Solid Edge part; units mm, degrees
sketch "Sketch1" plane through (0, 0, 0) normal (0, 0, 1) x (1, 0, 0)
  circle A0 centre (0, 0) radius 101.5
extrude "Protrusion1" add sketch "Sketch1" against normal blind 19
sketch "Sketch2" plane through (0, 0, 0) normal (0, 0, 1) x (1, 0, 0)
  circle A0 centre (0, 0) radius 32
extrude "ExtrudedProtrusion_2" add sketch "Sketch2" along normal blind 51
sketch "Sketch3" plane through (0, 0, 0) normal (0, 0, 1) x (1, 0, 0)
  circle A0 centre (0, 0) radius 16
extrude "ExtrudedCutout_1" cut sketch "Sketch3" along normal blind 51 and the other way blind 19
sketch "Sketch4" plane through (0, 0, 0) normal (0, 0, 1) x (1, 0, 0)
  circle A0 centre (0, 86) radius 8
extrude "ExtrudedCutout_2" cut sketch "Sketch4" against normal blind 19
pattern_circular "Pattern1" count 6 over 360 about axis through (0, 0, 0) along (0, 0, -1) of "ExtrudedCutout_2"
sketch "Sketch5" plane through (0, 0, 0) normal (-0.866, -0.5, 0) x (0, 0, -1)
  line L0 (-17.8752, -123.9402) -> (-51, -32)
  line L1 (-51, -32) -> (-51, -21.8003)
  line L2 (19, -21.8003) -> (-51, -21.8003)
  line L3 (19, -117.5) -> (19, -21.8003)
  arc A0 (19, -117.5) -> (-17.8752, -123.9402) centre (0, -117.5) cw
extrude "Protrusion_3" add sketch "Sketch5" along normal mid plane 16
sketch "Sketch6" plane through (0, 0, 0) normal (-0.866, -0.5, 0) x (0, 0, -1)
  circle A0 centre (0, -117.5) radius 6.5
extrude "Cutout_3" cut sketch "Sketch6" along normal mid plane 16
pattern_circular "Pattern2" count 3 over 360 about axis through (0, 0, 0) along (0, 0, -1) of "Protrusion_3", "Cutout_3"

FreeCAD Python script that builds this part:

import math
import FreeCAD as App
import Part
import Sketcher

V = App.Vector
Q = App.Units.Quantity

doc = App.newDocument("Part")
params = doc.addObject("Spreadsheet::Sheet", "Params")
for row, (alias, value) in enumerate([
    ("sketch1_diameter", "203 mm"),
    ("pad1_length", "19 mm"),
    ("sketch2_diameter", "64 mm"),
    ("pad2_length", "51 mm"),
    ("sketch3_diameter", "32 mm"),
    ("sketch4_diameter", "16 mm"),
    ("pocket2_length", "19 mm"),
    ("sketch5_radius", "19 mm"),
    ("sketch5_width", "70 mm"),
    ("pad3_length", "16 mm"),
    ("sketch6_diameter", "13 mm"),
    ("pocket3_length", "16 mm"),
], start=1):
    params.set(f"A{row}", alias)
    params.set(f"B{row}", "=" + value)
    params.setAlias(f"B{row}", alias)

body = doc.addObject("PartDesign::Body", "Body")

sketch1 = doc.addObject("Sketcher::SketchObject", "Sketch")
body.addObject(sketch1)
sketch1.AttachmentSupport = (doc.XY_Plane, [""])
sketch1.MapMode = "FlatFace"
sketch1.addGeometry(Part.Circle(V(0, 0, 0), V(0, 0, 1), 102), False)
sketch1.addConstraint([
    Sketcher.Constraint("Coincident", 0, 3, -1, 1),
    Sketcher.Constraint("Diameter", 0, Q("203 mm")),
])
sketch1.setExpression("Constraints[1]", "Params.sketch1_diameter")
pad1 = doc.addObject("PartDesign::Pad", "Pad")
body.addObject(pad1)
pad1.Profile = sketch1
pad1.setExpression("Length", "Params.pad1_length")
pad1.Reversed = True

sketch2 = doc.addObject("Sketcher::SketchObject", "Sketch001")
body.addObject(sketch2)
sketch2.AttachmentSupport = (doc.XY_Plane, [""])
sketch2.MapMode = "FlatFace"
sketch2.addGeometry(Part.Circle(V(0, 0, 0), V(0, 0, 1), 32), False)
sketch2.addConstraint([
    Sketcher.Constraint("Coincident", 0, 3, -1, 1),
    Sketcher.Constraint("Diameter", 0, Q("64 mm")),
])
sketch2.setExpression("Constraints[1]", "Params.sketch2_diameter")
pad2 = doc.addObject("PartDesign::Pad", "Pad001")
body.addObject(pad2)
pad2.Profile = sketch2
pad2.setExpression("Length", "Params.pad2_length")

sketch3 = doc.addObject("Sketcher::SketchObject", "Sketch002")
body.addObject(sketch3)
sketch3.AttachmentSupport = (doc.XY_Plane, [""])
sketch3.MapMode = "FlatFace"
sketch3.addGeometry(Part.Circle(V(0, 0, 0), V(0, 0, 1), 16), False)
sketch3.addConstraint([
    Sketcher.Constraint("Coincident", 0, 3, -1, 1),
    Sketcher.Constraint("Diameter", 0, Q("32 mm")),
])
sketch3.setExpression("Constraints[1]", "Params.sketch3_diameter")
pocket1 = doc.addObject("PartDesign::Pocket", "Pocket")
body.addObject(pocket1)
pocket1.Profile = sketch3
pocket1.Type = "ThroughAll"
pocket1.Midplane = True

sketch4 = doc.addObject("Sketcher::SketchObject", "Sketch003")
body.addObject(sketch4)
sketch4.AttachmentSupport = (doc.XY_Plane, [""])
sketch4.MapMode = "FlatFace"
sketch4.addGeometry(Part.Circle(V(0, 86, 0), V(0, 0, 1), 8), False)
sketch4.addConstraint([
    Sketcher.Constraint("PointOnObject", 0, 3, -2),
    Sketcher.Constraint("Diameter", 0, Q("16 mm")),
    Sketcher.Constraint("DistanceY", -1, 1, 0, 3, Q("86 mm")),
])
sketch4.setExpression("Constraints[1]", "Params.sketch4_diameter")
pocket2 = doc.addObject("PartDesign::Pocket", "Pocket001")
body.addObject(pocket2)
pocket2.Profile = sketch4
pocket2.setExpression("Length", "Params.pocket2_length")
doc.recompute()

polarpattern = doc.addObject("PartDesign::PolarPattern", "PolarPattern")
body.addObject(polarpattern)
polarpattern.Originals = [pocket2]
polarpattern.Axis = (doc.Z_Axis, [""])
polarpattern.Angle = 360
polarpattern.Occurrences = 6
body.Tip = polarpattern

sketch5 = doc.addObject("Sketcher::SketchObject", "Sketch004")
body.addObject(sketch5)
sketch5.Placement = App.Placement(V(0, 0, 0), App.Rotation(V(0, 0, -1), V(0.5, -0.866025404, 0), V(-0.866025404, -0.5, 0), "ZXY"))
sketch5.addGeometry([
    Part.LineSegment(V(-51, -32, 0), V(-18, -124, 0)),
    Part.ArcOfCircle(Part.Circle(V(0, -118, 0), V(0, 0, 1), 19), math.radians(-160), math.radians(0)),
    Part.LineSegment(V(19, -118, 0), V(19, -22, 0)),
    Part.LineSegment(V(19, -22, 0), V(-51, -22, 0)),
    Part.LineSegment(V(-51, -22, 0), V(-51, -32, 0)),
], False)
sketch5.addConstraint([
    Sketcher.Constraint("Tangent", 0, 2, 1, 1),
    Sketcher.Constraint("Tangent", 1, 2, 2, 1),
    Sketcher.Constraint("Coincident", 2, 2, 3, 1),
    Sketcher.Constraint("Coincident", 3, 2, 4, 1),
    Sketcher.Constraint("Coincident", 4, 2, 0, 1),
    Sketcher.Constraint("Vertical", 2),
    Sketcher.Constraint("Horizontal", 3),
    Sketcher.Constraint("Vertical", 4),
    Sketcher.Constraint("PointOnObject", 1, 3, -2),
    Sketcher.Constraint("Radius", 1, Q("19 mm")),
    Sketcher.Constraint("DistanceX", 3, 2, 3, 1, Q("70 mm")),
    Sketcher.Constraint("DistanceY", 4, 2, -1, 1, Q("32 mm")),
    Sketcher.Constraint("DistanceY", 1, 3, -1, 1, Q("117.5 mm")),
    Sketcher.Constraint("DistanceY", 0, 2, 2, 2, Q("102.14 mm")),
])
sketch5.setExpression("Constraints[9]", "Params.sketch5_radius")
sketch5.setExpression("Constraints[10]", "Params.sketch5_width")
pad3 = doc.addObject("PartDesign::Pad", "Pad002")
body.addObject(pad3)
pad3.Profile = sketch5
pad3.setExpression("Length", "Params.pad3_length")
pad3.Midplane = True

sketch6 = doc.addObject("Sketcher::SketchObject", "Sketch005")
body.addObject(sketch6)
sketch6.Placement = App.Placement(V(0, 0, 0), App.Rotation(V(0, 0, -1), V(0.5, -0.866025404, 0), V(-0.866025404, -0.5, 0), "ZXY"))
sketch6.addGeometry(Part.Circle(V(0, -118, 0), V(0, 0, 1), 6), False)
sketch6.addConstraint([
    Sketcher.Constraint("PointOnObject", 0, 3, -2),
    Sketcher.Constraint("Diameter", 0, Q("13 mm")),
    Sketcher.Constraint("DistanceY", 0, 3, -1, 1, Q("117.5 mm")),
])
sketch6.setExpression("Constraints[1]", "Params.sketch6_diameter")
pocket3 = doc.addObject("PartDesign::Pocket", "Pocket002")
body.addObject(pocket3)
pocket3.Profile = sketch6
pocket3.setExpression("Length", "Params.pocket3_length")
pocket3.Midplane = True
doc.recompute()

polarpattern2 = doc.addObject("PartDesign::PolarPattern", "PolarPattern001")
body.addObject(polarpattern2)
polarpattern2.Originals = [pad3, pocket3]
polarpattern2.Axis = (doc.Z_Axis, [""])
polarpattern2.Angle = 360
polarpattern2.Occurrences = 3
body.Tip = polarpattern2

doc.recompute()
